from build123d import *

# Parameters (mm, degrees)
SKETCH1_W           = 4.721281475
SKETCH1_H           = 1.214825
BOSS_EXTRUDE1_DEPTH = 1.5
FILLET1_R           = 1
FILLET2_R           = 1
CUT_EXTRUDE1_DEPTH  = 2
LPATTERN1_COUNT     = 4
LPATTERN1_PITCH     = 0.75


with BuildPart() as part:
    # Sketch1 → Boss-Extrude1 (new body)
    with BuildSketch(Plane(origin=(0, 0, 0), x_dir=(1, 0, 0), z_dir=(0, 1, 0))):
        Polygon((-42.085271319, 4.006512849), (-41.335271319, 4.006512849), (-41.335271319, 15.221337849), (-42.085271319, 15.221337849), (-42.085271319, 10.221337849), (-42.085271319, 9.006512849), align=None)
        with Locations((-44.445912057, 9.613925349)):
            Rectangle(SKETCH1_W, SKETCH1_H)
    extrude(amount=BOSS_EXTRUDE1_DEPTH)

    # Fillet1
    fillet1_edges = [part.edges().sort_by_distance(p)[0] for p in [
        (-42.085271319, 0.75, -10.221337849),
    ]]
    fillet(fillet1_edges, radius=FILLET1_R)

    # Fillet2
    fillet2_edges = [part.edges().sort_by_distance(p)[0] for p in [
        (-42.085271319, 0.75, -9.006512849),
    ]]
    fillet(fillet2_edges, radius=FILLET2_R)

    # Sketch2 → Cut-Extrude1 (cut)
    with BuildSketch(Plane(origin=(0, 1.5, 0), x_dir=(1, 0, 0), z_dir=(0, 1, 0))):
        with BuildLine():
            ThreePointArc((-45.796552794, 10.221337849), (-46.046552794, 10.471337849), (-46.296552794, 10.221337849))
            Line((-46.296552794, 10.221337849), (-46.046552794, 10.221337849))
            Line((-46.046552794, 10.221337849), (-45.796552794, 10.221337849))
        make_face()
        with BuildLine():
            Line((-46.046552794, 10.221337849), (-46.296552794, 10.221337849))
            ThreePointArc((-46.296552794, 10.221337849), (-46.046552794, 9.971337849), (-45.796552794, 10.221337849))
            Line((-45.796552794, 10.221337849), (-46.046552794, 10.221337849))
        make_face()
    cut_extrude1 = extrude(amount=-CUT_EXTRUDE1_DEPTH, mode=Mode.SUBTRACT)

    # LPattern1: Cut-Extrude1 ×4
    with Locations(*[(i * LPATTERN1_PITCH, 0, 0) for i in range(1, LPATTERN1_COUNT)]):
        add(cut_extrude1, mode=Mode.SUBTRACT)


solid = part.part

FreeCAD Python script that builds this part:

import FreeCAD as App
import Part
import Sketcher
Q = App.Units.Quantity


def edges_at(feature, points):
    """Names of the edges that pass closest to the given points."""
    edges = feature.Shape.Edges
    near = lambda p: min(range(len(edges)), key=lambda i: edges[i].distToShape(Part.Vertex(*p))[0])
    return sorted({f"Edge{near(p) + 1}" for p in points})


def add_polygon(sketch, points):
    """Adds a closed chain of lines whose ends are joined by coincident constraints."""
    first, n = sketch.GeometryCount, len(points)
    for a, b in zip(points, points[1:] + points[:1]):
        sketch.addGeometry(Part.LineSegment(App.Vector(*a, 0), App.Vector(*b, 0)), False)
    for i in range(n):
        sketch.addConstraint(Sketcher.Constraint("Coincident", first + i, 2, first + (i + 1) % n, 1))

doc = App.newDocument("Part")
body = doc.addObject("PartDesign::Body", "Body")

# Sketch on XZ plane
sketch1 = doc.addObject("Sketcher::SketchObject", "Sketch")
body.addObject(sketch1)
sketch1.AttachmentSupport = (doc.XZ_Plane, [""])
sketch1.MapMode = "FlatFace"
add_polygon(sketch1, [(-42.1, -4), (-41.3, -4), (-41.3, -15.2), (-42.1, -15.2), (-42.1, -10.2), (-46.8, -10.2), (-46.8, -9), (-42.1, -9)])  # lines 0-7
sketch1.addConstraint(Sketcher.Constraint("Horizontal", 0))
sketch1.addConstraint(Sketcher.Constraint("Vertical", 1))
sketch1.addConstraint(Sketcher.Constraint("Horizontal", 2))
sketch1.addConstraint(Sketcher.Constraint("Vertical", 3))
sketch1.addConstraint(Sketcher.Constraint("Horizontal", 4))
sketch1.addConstraint(Sketcher.Constraint("Vertical", 5))
sketch1.addConstraint(Sketcher.Constraint("Horizontal", 6))
sketch1.addConstraint(Sketcher.Constraint("Vertical", 7))
sketch1.addConstraint(Sketcher.Constraint("Vertical", 3, 2, 6, 2))
sketch1.addConstraint(Sketcher.Constraint("Equal", 3, 7))
sketch1.addConstraint(Sketcher.Constraint("DistanceY", 3, 1, 3, 2, Q("5 mm")))
sketch1.addConstraint(Sketcher.Constraint("DistanceX", 0, 1, 0, 2, Q("0.75 mm")))
sketch1.addConstraint(Sketcher.Constraint("DistanceX", 4, 2, 4, 1, Q("4.721281 mm")))
sketch1.addConstraint(Sketcher.Constraint("DistanceY", 1, 2, 1, 1, Q("11.214825 mm")))
sketch1.addConstraint(Sketcher.Constraint("DistanceX", 0, 2, -1, 1, Q("41.335271 mm")))
sketch1.addConstraint(Sketcher.Constraint("DistanceY", 0, 2, -1, 1, Q("4.006513 mm")))
pad1 = doc.addObject("PartDesign::Pad", "Pad")
body.addObject(pad1)
pad1.Profile = sketch1
pad1.Length = 1.5
pad1.Reversed = True
doc.recompute()

fillet = doc.addObject("PartDesign::Fillet", "Fillet")
body.addObject(fillet)
fillet.Base = (pad1, edges_at(pad1, [(-42.085, 0.75, -10.221)]))
fillet.Radius = 1
doc.recompute()

fillet2 = doc.addObject("PartDesign::Fillet", "Fillet001")
body.addObject(fillet2)
fillet2.Base = (fillet, edges_at(fillet, [(-42.085, 0.75, -9.007)]))
fillet2.Radius = 1

# Sketch on XZ plane
sketch2 = doc.addObject("Sketcher::SketchObject", "Sketch001")
body.addObject(sketch2)
sketch2.AttachmentSupport = (doc.XZ_Plane, [""])
sketch2.MapMode = "FlatFace"
sketch2.AttachmentOffset = App.Placement(App.Vector(0, 0, -1.5), App.Rotation())
sketch2.addGeometry(Part.Circle(App.Vector(-46.05, -10.22, 0), App.Vector(0, 0, 1), 0.25), False)
sketch2.addConstraint(Sketcher.Constraint("Diameter", 0, Q("0.5 mm")))
sketch2.addConstraint(Sketcher.Constraint("DistanceX", 0, 3, -1, 1, Q("46.046553 mm")))
sketch2.addConstraint(Sketcher.Constraint("DistanceY", 0, 3, -1, 1, Q("10.221338 mm")))
pocket1 = doc.addObject("PartDesign::Pocket", "Pocket")
body.addObject(pocket1)
pocket1.Profile = sketch2
pocket1.Length = 2
pocket1.Reversed = True
doc.recompute()

linearpattern = doc.addObject("PartDesign::LinearPattern", "LinearPattern")
body.addObject(linearpattern)
linearpattern.Originals = [pocket1]
linearpattern.Direction = (doc.X_Axis, [""])
linearpattern.Mode = "offset"
linearpattern.Offset = 0.75
linearpattern.Occurrences = 4
body.Tip = linearpattern

doc.recompute()
